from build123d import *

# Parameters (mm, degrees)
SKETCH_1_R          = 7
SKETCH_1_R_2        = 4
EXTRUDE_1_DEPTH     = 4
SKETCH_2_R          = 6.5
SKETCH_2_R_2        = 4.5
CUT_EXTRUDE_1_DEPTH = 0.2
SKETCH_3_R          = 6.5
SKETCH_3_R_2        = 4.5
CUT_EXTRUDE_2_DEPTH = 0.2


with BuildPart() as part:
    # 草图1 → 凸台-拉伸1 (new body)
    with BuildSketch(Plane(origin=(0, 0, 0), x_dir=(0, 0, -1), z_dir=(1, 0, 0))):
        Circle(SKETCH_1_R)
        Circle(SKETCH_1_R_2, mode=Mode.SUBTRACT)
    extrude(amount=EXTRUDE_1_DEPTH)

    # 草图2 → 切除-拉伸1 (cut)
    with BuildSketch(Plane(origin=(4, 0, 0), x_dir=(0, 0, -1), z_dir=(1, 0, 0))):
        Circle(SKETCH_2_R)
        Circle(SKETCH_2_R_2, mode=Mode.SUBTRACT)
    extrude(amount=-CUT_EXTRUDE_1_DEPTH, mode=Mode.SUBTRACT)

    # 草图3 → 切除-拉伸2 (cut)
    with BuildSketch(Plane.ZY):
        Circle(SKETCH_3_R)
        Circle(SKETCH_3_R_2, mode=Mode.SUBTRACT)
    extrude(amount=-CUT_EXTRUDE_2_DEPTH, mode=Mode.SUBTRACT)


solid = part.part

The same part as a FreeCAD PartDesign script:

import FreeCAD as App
import Part
import Sketcher
from FreeCAD import Vector

doc = App.newDocument("Part")
body = doc.addObject("PartDesign::Body", "Body")

sketch1 = body.newObject("Sketcher::SketchObject", "Sketch")
sketch1.AttachmentSupport = (doc.getObject("YZ_Plane"), [""])
sketch1.MapMode = "FlatFace"
sketch1.addGeometry([
    Part.Circle(Vector(0, 0, 0), Vector(0, 0, 1), 7),
    Part.Circle(Vector(0, 0, 0), Vector(0, 0, 1), 4),
], False)
sketch1.addConstraint([
    Sketcher.Constraint("Coincident", 0, 3, -1, 1),
    Sketcher.Constraint("Coincident", 1, 3, -1, 1),
    Sketcher.Constraint("Diameter", 0, 14.0),
    Sketcher.Constraint("Diameter", 1, 8.0),
])
pad1 = body.newObject("PartDesign::Pad", "Pad")
pad1.Profile = sketch1
pad1.Length = 4

sketch2 = body.newObject("Sketcher::SketchObject", "Sketch001")
sketch2.AttachmentSupport = (doc.getObject("YZ_Plane"), [""])
sketch2.MapMode = "FlatFace"
sketch2.AttachmentOffset = App.Placement(Vector(0, 0, 4), App.Rotation())
sketch2.addGeometry([
    Part.Circle(Vector(0, 0, 0), Vector(0, 0, 1), 6.5),
    Part.Circle(Vector(0, 0, 0), Vector(0, 0, 1), 4.5),
], False)
sketch2.addConstraint([
    Sketcher.Constraint("Coincident", 0, 3, -1, 1),
    Sketcher.Constraint("Coincident", 1, 3, -1, 1),
    Sketcher.Constraint("Diameter", 0, 13.0),
    Sketcher.Constraint("Diameter", 1, 9.0),
])
pocket1 = body.newObject("PartDesign::Pocket", "Pocket")
pocket1.Profile = sketch2
pocket1.Length = 0.2

sketch3 = body.newObject("Sketcher::SketchObject", "Sketch002")
sketch3.AttachmentSupport = (doc.getObject("YZ_Plane"), [""])
sketch3.MapMode = "FlatFace"
sketch3.addGeometry([
    Part.Circle(Vector(0, 0, 0), Vector(0, 0, 1), 6.5),
    Part.Circle(Vector(0, 0, 0), Vector(0, 0, 1), 4.5),
], False)
sketch3.addConstraint([
    Sketcher.Constraint("Coincident", 0, 3, -1, 1),
    Sketcher.Constraint("Coincident", 1, 3, -1, 1),
    Sketcher.Constraint("Diameter", 0, 13.0),
    Sketcher.Constraint("Diameter", 1, 9.0),
])
pocket2 = body.newObject("PartDesign::Pocket", "Pocket001")
pocket2.Profile = sketch3
pocket2.Length = 0.2
pocket2.Reversed = True

doc.recompute()
